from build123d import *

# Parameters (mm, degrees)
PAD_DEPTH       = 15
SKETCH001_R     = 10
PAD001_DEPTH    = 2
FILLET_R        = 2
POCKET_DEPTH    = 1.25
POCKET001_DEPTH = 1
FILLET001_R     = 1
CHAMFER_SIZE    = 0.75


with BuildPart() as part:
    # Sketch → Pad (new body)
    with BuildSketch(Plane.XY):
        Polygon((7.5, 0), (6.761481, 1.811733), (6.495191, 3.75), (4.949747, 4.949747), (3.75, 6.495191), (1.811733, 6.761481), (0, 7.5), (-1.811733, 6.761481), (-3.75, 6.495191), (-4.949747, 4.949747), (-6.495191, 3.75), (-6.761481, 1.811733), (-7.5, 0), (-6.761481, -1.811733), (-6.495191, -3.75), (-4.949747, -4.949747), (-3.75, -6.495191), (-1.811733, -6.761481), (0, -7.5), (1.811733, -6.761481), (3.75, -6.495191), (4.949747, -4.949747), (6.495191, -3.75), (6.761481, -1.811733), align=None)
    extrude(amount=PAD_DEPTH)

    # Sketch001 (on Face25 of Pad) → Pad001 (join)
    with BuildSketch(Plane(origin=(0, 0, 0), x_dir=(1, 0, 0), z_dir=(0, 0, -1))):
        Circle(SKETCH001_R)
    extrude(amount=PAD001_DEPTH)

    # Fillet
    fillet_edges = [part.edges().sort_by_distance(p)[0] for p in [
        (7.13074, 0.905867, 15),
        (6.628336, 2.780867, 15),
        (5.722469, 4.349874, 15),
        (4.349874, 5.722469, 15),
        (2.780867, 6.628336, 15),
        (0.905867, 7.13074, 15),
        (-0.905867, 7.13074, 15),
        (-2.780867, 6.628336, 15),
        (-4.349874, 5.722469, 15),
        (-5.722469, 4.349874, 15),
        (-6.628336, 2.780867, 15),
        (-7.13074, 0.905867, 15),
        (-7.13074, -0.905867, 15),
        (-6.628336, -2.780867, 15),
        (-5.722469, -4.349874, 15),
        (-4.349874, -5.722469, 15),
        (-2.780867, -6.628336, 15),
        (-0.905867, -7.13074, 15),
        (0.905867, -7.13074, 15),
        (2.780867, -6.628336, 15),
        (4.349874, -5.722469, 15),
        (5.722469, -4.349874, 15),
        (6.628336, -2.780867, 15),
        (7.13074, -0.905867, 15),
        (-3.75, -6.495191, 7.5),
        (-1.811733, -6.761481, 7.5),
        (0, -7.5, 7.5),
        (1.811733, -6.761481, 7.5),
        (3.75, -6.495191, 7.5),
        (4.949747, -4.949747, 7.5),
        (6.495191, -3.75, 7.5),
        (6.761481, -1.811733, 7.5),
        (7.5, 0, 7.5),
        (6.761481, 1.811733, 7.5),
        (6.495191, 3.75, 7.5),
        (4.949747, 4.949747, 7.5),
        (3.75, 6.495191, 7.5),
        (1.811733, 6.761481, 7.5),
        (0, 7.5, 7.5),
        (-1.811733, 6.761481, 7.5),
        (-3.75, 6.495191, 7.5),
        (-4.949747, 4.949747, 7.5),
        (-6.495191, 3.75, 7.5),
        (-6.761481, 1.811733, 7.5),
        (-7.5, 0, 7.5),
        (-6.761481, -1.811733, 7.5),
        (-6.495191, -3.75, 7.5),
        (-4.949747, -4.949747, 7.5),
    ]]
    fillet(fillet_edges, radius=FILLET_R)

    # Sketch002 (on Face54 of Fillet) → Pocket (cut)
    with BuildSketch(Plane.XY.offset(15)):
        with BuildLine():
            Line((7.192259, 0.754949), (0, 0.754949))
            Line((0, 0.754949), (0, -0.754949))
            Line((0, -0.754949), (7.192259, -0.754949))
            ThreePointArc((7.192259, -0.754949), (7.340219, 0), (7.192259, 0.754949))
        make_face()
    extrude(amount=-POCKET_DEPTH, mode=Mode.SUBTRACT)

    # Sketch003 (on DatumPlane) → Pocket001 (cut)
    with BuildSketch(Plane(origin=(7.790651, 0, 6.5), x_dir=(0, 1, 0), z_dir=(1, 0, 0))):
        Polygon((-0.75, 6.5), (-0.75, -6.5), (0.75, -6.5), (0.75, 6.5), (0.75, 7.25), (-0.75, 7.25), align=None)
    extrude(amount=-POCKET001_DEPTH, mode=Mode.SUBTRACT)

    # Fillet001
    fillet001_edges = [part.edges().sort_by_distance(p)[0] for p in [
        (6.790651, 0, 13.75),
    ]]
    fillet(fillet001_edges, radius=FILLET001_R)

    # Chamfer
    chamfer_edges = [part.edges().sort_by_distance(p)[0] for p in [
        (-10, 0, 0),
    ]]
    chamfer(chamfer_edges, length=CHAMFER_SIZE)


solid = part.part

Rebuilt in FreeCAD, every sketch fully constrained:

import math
import FreeCAD as App
import Part
import Sketcher
from FreeCAD import Vector


def edges_at(feature, points):
    """Names of the edges that pass closest to the given points."""
    edges = feature.Shape.Edges
    near = lambda p: min(range(len(edges)), key=lambda i: edges[i].distToShape(Part.Vertex(*p))[0])
    return sorted({f"Edge{near(p) + 1}" for p in points})


def add_polygon(sketch, points):
    """Adds a closed chain of lines whose ends are joined by coincident constraints."""
    first, n = sketch.GeometryCount, len(points)
    for a, b in zip(points, points[1:] + points[:1]):
        sketch.addGeometry(Part.LineSegment(App.Vector(*a, 0), App.Vector(*b, 0)), False)
    for i in range(n):
        sketch.addConstraint(Sketcher.Constraint("Coincident", first + i, 2, first + (i + 1) % n, 1))

doc = App.newDocument("Part")
params = doc.addObject("Spreadsheet::Sheet", "Params")
for row, (alias, value) in enumerate([
    ("pad1_length", "15 mm"),
    ("sketch2_diameter", "20 mm"),
    ("pad2_length", "2 mm"),
    ("fillet_radius", "2 mm"),
    ("sketch3_radius", "2.000001 mm"),
    ("pocket1_length", "1.25 mm"),
    ("sketch4_width", "1.5 mm"),
    ("sketch4_height", "13.75 mm"),
    ("pocket2_length", "1 mm"),
    ("fillet2_radius", "1 mm"),
    ("chamfer_size", "0.75 mm"),
], start=1):
    params.set(f"A{row}", alias)
    params.set(f"B{row}", "=" + value)
    params.setAlias(f"B{row}", alias)

body = doc.addObject("PartDesign::Body", "Body")

sketch1 = body.newObject("Sketcher::SketchObject", "Sketch")
sketch1.AttachmentSupport = (doc.getObject("XY_Plane"), [""])
sketch1.MapMode = "FlatFace"
add_polygon(sketch1, [(7.5, 0), (6.8, 1.8), (6.5, 3.8), (4.9, 4.9), (3.8, 6.5), (1.8, 6.8), (0, 7.5), (-1.8, 6.8), (-3.8, 6.5), (-4.9, 4.9), (-6.5, 3.8), (-6.8, 1.8), (-7.5, 0), (-6.8, -1.8), (-6.5, -3.8), (-4.9, -4.9), (-3.8, -6.5), (-1.8, -6.8), (0, -7.5), (1.8, -6.8), (3.8, -6.5), (4.9, -4.9), (6.5, -3.8), (6.8, -1.8)])
sketch1.addConstraint(Sketcher.Constraint("Symmetric", 0, 2, 12, 2, -1, 1))
sketch1.addConstraint(Sketcher.Constraint("Symmetric", 1, 2, 13, 2, -1, 1))
sketch1.addConstraint(Sketcher.Constraint("Symmetric", 2, 2, 14, 2, -1, 1))
sketch1.addConstraint(Sketcher.Constraint("Symmetric", 3, 2, 15, 2, -1, 1))
sketch1.addConstraint(Sketcher.Constraint("Symmetric", 4, 2, 16, 2, -1, 1))
sketch1.addConstraint(Sketcher.Constraint("Symmetric", 5, 2, 17, 2, -1, 1))
sketch1.addConstraint(Sketcher.Constraint("Symmetric", 6, 2, 18, 2, -1, 1))
sketch1.addConstraint(Sketcher.Constraint("Symmetric", 7, 2, 19, 2, -1, 1))
sketch1.addConstraint(Sketcher.Constraint("Symmetric", 8, 2, 20, 2, -1, 1))
sketch1.addConstraint(Sketcher.Constraint("Symmetric", 9, 2, 21, 2, -1, 1))
sketch1.addConstraint(Sketcher.Constraint("Symmetric", 10, 2, 22, 2, -1, 1))
sketch1.addConstraint(Sketcher.Constraint("Symmetric", 11, 2, 23, 2, -1, 1))
sketch1.addConstraint(Sketcher.Constraint("Symmetric", 4, 2, 6, 2, -2))
sketch1.addConstraint(Sketcher.Constraint("Symmetric", 3, 2, 7, 2, -2))
sketch1.addConstraint(Sketcher.Constraint("Symmetric", 2, 2, 8, 2, -2))
sketch1.addConstraint(Sketcher.Constraint("Symmetric", 1, 2, 9, 2, -2))
sketch1.addConstraint(Sketcher.Constraint("Symmetric", 0, 2, 10, 2, -2))
sketch1.addConstraint(Sketcher.Constraint("PointOnObject", 5, 2, -2))
sketch1.addConstraint(Sketcher.Constraint("PointOnObject", 11, 2, -1))
sketch1.addConstraint(Sketcher.Constraint("Perpendicular", 0, 6))
sketch1.addConstraint(Sketcher.Constraint("Perpendicular", 1, 7))
sketch1.addConstraint(Sketcher.Constraint("Perpendicular", 2, 8))
sketch1.addConstraint(Sketcher.Constraint("Equal", 0, 1))
sketch1.addConstraint(Sketcher.Constraint("Equal", 1, 2))
sketch1.addConstraint(Sketcher.Constraint("Equal", 2, 3))
sketch1.addConstraint(Sketcher.Constraint("Equal", 3, 4))
sketch1.addConstraint(Sketcher.Constraint("Equal", 4, 5))
sketch1.addConstraint(Sketcher.Constraint("DistanceY", -1, 1, 5, 2, 7.5))
sketch1.addConstraint(Sketcher.Constraint("DistanceX", 7, 2, 3, 2, 7.5))
sketch1.addConstraint(Sketcher.Constraint("DistanceX", -1, 1, 0, 2, 6.761481))
sketch1.addConstraint(Sketcher.Constraint("DistanceX", -1, 1, 1, 2, 6.495191))
pad1 = body.newObject("PartDesign::Pad", "Pad")
pad1.Profile = sketch1
pad1.setExpression("Length", "Params.pad1_length")

sketch2 = body.newObject("Sketcher::SketchObject", "Sketch001")
sketch2.AttachmentSupport = (doc.getObject("XY_Plane"), [""])
sketch2.MapMode = "FlatFace"
sketch2.addGeometry(Part.Circle(Vector(0, 0, 0), Vector(0, 0, 1), 10), False)
sketch2.addConstraint(Sketcher.Constraint("Coincident", 0, 3, -1, 1))
sketch2.addConstraint(Sketcher.Constraint("Diameter", 0, 20.0))
sketch2.setExpression("Constraints[1]", "Params.sketch2_diameter")
pad2 = body.newObject("PartDesign::Pad", "Pad001")
pad2.Profile = sketch2
pad2.setExpression("Length", "Params.pad2_length")
pad2.Reversed = True
doc.recompute()

fillet = body.newObject("PartDesign::Fillet", "Fillet")
fillet.Base = (pad2, edges_at(pad2, [
    (7.131, 0.906, 15),
    (6.628, 2.781, 15),
    (5.722, 4.35, 15),
    (4.35, 5.722, 15),
    (2.781, 6.628, 15),
    (0.906, 7.131, 15),
    (-0.906, 7.131, 15),
    (-2.781, 6.628, 15),
    (-4.35, 5.722, 15),
    (-5.722, 4.35, 15),
    (-6.628, 2.781, 15),
    (-7.131, 0.906, 15),
    (-7.131, -0.906, 15),
    (-6.628, -2.781, 15),
    (-5.722, -4.35, 15),
    (-4.35, -5.722, 15),
    (-2.781, -6.628, 15),
    (-0.906, -7.131, 15),
    (0.906, -7.131, 15),
    (2.781, -6.628, 15),
    (4.35, -5.722, 15),
    (5.722, -4.35, 15),
    (6.628, -2.781, 15),
    (7.131, -0.906, 15),
    (-3.75, -6.495, 7.5),
    (-1.812, -6.761, 7.5),
    (0, -7.5, 7.5),
    (1.812, -6.761, 7.5),
    (3.75, -6.495, 7.5),
    (4.95, -4.95, 7.5),
    (6.495, -3.75, 7.5),
    (6.761, -1.812, 7.5),
    (7.5, 0, 7.5),
    (6.761, 1.812, 7.5),
    (6.495, 3.75, 7.5),
    (4.95, 4.95, 7.5),
    (3.75, 6.495, 7.5),
    (1.812, 6.761, 7.5),
    (0, 7.5, 7.5),
    (-1.812, 6.761, 7.5),
    (-3.75, 6.495, 7.5),
    (-4.95, 4.95, 7.5),
    (-6.495, 3.75, 7.5),
    (-6.761, 1.812, 7.5),
    (-7.5, 0, 7.5),
    (-6.761, -1.812, 7.5),
    (-6.495, -3.75, 7.5),
    (-4.95, -4.95, 7.5),
]))
fillet.setExpression("Radius", "Params.fillet_radius")

sketch3 = body.newObject("Sketcher::SketchObject", "Sketch002")
sketch3.AttachmentSupport = (doc.getObject("XY_Plane"), [""])
sketch3.MapMode = "FlatFace"
sketch3.AttachmentOffset = App.Placement(Vector(0, 0, 15), App.Rotation())
sketch3.addGeometry(Part.LineSegment(Vector(7.2, 0.8, 0), Vector(0, 0.8, 0)), False)
sketch3.addGeometry(Part.LineSegment(Vector(0, 0.8, 0), Vector(0, -0.8, 0)), False)
sketch3.addGeometry(Part.LineSegment(Vector(0, -0.8, 0), Vector(7.2, -0.8, 0)), False)
sketch3.addGeometry(Part.ArcOfCircle(Part.Circle(Vector(5.3, 0, 0), Vector(0, 0, 1), 2), math.radians(-22), math.radians(22)), False)
sketch3.addConstraint(Sketcher.Constraint("Coincident", 0, 2, 1, 1))
sketch3.addConstraint(Sketcher.Constraint("Coincident", 1, 2, 2, 1))
sketch3.addConstraint(Sketcher.Constraint("Coincident", 2, 2, 3, 1))
sketch3.addConstraint(Sketcher.Constraint("Coincident", 3, 2, 0, 1))
sketch3.addConstraint(Sketcher.Constraint("Horizontal", 0))
sketch3.addConstraint(Sketcher.Constraint("Vertical", 1))
sketch3.addConstraint(Sketcher.Constraint("Horizontal", 2))
sketch3.addConstraint(Sketcher.Constraint("Symmetric", 0, 2, 1, 2, -1, 1))
sketch3.addConstraint(Sketcher.Constraint("PointOnObject", 3, 3, -1))
sketch3.addConstraint(Sketcher.Constraint("Radius", 3, 2.000001))
sketch3.addConstraint(Sketcher.Constraint("DistanceX", 0, 2, 0, 1, 7.192259))
sketch3.addConstraint(Sketcher.Constraint("DistanceY", 1, 2, 1, 1, 1.509898))
sketch3.setExpression("Constraints[9]", "Params.sketch3_radius")
pocket1 = body.newObject("PartDesign::Pocket", "Pocket")
pocket1.Profile = sketch3
pocket1.setExpression("Length", "Params.pocket1_length")

sketch4 = body.newObject("Sketcher::SketchObject", "Sketch003")
sketch4.AttachmentSupport = (doc.getObject("YZ_Plane"), [""])
sketch4.MapMode = "FlatFace"
sketch4.AttachmentOffset = App.Placement(Vector(0, 0, 7.790651), App.Rotation())
add_polygon(sketch4, [(-0.8, 0), (0.8, 0), (0.8, 13.8), (-0.8, 13.8)])
sketch4.addConstraint(Sketcher.Constraint("Horizontal", 0))
sketch4.addConstraint(Sketcher.Constraint("Vertical", 1))
sketch4.addConstraint(Sketcher.Constraint("Horizontal", 2))
sketch4.addConstraint(Sketcher.Constraint("Vertical", 3))
sketch4.addConstraint(Sketcher.Constraint("Symmetric", 0, 2, 3, 2, -1, 1))
sketch4.addConstraint(Sketcher.Constraint("DistanceX", 0, 1, 0, 2, 1.5))
sketch4.addConstraint(Sketcher.Constraint("DistanceY", 1, 1, 1, 2, 13.75))
sketch4.setExpression("Constraints[9]", "Params.sketch4_width")
sketch4.setExpression("Constraints[10]", "Params.sketch4_height")
pocket2 = body.newObject("PartDesign::Pocket", "Pocket001")
pocket2.Profile = sketch4
pocket2.setExpression("Length", "Params.pocket2_length")
doc.recompute()

fillet2 = body.newObject("PartDesign::Fillet", "Fillet001")
fillet2.Base = (pocket2, edges_at(pocket2, [(6.791, 0, 13.75)]))
fillet2.setExpression("Radius", "Params.fillet2_radius")
doc.recompute()

chamfer = body.newObject("PartDesign::Chamfer", "Chamfer")
chamfer.Base = (fillet2, edges_at(fillet2, [(-10, 0, 0)]))
chamfer.setExpression("Size", "Params.chamfer_size")

doc.recompute()
